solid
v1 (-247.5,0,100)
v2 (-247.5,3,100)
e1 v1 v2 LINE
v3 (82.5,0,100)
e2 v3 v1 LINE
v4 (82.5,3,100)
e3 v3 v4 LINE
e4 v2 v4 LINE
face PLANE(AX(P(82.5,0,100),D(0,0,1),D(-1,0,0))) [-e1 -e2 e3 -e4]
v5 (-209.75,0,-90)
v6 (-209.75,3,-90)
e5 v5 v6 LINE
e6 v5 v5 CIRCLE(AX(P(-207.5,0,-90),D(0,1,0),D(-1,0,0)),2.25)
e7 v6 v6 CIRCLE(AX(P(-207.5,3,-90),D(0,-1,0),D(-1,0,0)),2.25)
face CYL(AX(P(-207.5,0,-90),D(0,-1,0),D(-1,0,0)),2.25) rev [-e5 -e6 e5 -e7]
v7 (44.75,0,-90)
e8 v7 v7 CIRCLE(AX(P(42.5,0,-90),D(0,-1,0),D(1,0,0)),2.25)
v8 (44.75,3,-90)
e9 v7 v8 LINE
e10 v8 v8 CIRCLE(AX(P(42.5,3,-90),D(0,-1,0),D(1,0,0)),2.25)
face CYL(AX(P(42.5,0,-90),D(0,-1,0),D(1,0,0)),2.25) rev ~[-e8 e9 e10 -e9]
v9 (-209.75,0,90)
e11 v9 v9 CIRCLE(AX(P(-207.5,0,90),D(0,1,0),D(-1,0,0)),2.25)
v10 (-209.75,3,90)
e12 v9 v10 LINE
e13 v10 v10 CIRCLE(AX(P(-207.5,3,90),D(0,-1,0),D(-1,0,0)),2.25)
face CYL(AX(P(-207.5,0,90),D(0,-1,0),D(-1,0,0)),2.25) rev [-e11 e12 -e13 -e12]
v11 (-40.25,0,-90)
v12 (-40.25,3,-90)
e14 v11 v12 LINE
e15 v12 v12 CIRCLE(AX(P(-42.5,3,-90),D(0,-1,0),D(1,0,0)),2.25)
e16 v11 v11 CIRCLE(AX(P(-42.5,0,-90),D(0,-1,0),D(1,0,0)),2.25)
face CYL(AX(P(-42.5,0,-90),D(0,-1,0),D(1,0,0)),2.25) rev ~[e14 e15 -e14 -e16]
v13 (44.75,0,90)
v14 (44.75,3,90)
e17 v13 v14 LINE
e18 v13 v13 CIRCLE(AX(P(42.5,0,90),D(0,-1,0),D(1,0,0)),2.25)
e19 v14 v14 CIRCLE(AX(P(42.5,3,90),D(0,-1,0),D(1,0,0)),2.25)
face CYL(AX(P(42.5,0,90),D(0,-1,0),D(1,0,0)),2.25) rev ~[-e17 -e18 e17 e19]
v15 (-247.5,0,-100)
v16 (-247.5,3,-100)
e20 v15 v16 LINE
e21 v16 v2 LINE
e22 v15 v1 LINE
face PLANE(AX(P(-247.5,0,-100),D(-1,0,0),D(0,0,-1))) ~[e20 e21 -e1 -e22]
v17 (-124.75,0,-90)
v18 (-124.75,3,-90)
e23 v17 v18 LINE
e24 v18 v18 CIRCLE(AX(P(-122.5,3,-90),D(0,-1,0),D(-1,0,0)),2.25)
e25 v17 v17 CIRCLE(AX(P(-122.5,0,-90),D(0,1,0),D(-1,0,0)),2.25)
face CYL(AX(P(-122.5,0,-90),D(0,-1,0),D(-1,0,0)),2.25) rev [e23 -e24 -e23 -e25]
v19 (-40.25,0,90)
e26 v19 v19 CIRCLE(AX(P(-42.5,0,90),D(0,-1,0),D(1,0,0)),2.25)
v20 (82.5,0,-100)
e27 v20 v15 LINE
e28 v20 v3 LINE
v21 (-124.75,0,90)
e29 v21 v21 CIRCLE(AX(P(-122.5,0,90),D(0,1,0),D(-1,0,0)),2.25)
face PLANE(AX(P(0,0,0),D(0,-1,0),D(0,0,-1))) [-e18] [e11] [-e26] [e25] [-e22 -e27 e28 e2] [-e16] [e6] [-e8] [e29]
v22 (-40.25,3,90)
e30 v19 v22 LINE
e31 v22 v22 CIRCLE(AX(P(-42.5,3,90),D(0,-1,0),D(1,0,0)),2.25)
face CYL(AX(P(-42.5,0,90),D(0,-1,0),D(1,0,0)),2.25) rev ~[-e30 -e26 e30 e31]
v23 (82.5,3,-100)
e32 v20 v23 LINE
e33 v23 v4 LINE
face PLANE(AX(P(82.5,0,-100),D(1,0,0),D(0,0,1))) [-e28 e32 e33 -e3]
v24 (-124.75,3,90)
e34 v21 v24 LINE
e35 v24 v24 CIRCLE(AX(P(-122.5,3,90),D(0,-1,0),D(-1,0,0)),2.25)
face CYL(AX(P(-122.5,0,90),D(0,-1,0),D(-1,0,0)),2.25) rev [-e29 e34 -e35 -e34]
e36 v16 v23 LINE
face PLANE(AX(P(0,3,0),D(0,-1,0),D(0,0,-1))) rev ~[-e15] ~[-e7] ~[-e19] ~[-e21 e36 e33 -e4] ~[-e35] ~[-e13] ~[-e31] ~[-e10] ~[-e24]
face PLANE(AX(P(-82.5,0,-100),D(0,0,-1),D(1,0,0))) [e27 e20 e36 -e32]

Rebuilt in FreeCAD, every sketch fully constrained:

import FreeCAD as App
import Part
import Sketcher

V = App.Vector

doc = App.newDocument("Part")
body = doc.addObject("PartDesign::Body", "Body")

# Sketch on XZ plane
sketch1 = body.newObject("Sketcher::SketchObject", "Sketch")
sketch1.AttachmentSupport = (doc.getObject("XZ_Plane"), [""])
sketch1.MapMode = "FlatFace"
sketch1.addGeometry(Part.LineSegment(V(-82, 100, 0), V(-82, -100, 0)), False)
sketch1.addGeometry(Part.LineSegment(V(-82, -100, 0), V(82, -100, 0)), False)
sketch1.addGeometry(Part.LineSegment(V(82, -100, 0), V(82, 100, 0)), False)
sketch1.addGeometry(Part.LineSegment(V(82, 100, 0), V(-82, 100, 0)), False)
sketch1.addConstraint(Sketcher.Constraint("Coincident", 0, 2, 1, 1))
sketch1.addConstraint(Sketcher.Constraint("Coincident", 1, 2, 2, 1))
sketch1.addConstraint(Sketcher.Constraint("Coincident", 2, 2, 3, 1))
sketch1.addConstraint(Sketcher.Constraint("Coincident", 3, 2, 0, 1))
sketch1.addConstraint(Sketcher.Constraint("Vertical", 0))
sketch1.addConstraint(Sketcher.Constraint("Horizontal", 1))
sketch1.addConstraint(Sketcher.Constraint("Vertical", 2))
sketch1.addConstraint(Sketcher.Constraint("Horizontal", 3))
sketch1.addConstraint(Sketcher.Constraint("Symmetric", 0, 2, 2, 2, -1, 1))
sketch1.addConstraint(Sketcher.Constraint("DistanceX", 0, 2, -1, 1, 82.5))
sketch1.addConstraint(Sketcher.Constraint("DistanceY", 0, 2, 0, 1, 200.0))
pad1 = body.newObject("PartDesign::Pad", "Pad")
pad1.Profile = sketch1
pad1.Length = 3
pad1.Reversed = True

# Sketch on XZ plane
sketch2 = body.newObject("Sketcher::SketchObject", "Sketch001")
sketch2.AttachmentSupport = (doc.getObject("XZ_Plane"), [""])
sketch2.MapMode = "FlatFace"
sketch2.addGeometry(Part.Circle(V(-42.5, 90, 0), V(0, 0, 1), 2.2), False)
sketch2.addGeometry(Part.Circle(V(42.5, 90, 0), V(0, 0, 1), 2.2), False)
sketch2.addConstraint(Sketcher.Constraint("Equal", 0, 1))
sketch2.addConstraint(Sketcher.Constraint("Symmetric", 0, 3, 1, 3, -2))
sketch2.addConstraint(Sketcher.Constraint("Diameter", 0, 4.5))
sketch2.addConstraint(Sketcher.Constraint("DistanceX", 0, 3, -1, 1, 42.5))
sketch2.addConstraint(Sketcher.Constraint("DistanceY", -1, 1, 0, 3, 90.0))
pocket1 = body.newObject("PartDesign::Pocket", "Pocket")
pocket1.Profile = sketch2
pocket1.Type = "ThroughAll"

# Sketch on XZ plane
sketch3 = body.newObject("Sketcher::SketchObject", "Sketch002")
sketch3.AttachmentSupport = (doc.getObject("XZ_Plane"), [""])
sketch3.MapMode = "FlatFace"
sketch3.addGeometry(Part.Circle(V(42.5, -90, 0), V(0, 0, 1), 2.2), False)
sketch3.addGeometry(Part.Circle(V(-42.5, -90, 0), V(0, 0, 1), 2.2), False)
sketch3.addConstraint(Sketcher.Constraint("Equal", 0, 1))
sketch3.addConstraint(Sketcher.Constraint("Symmetric", 0, 3, 1, 3, -2))
sketch3.addConstraint(Sketcher.Constraint("Diameter", 0, 4.5))
sketch3.addConstraint(Sketcher.Constraint("DistanceY", 0, 3, -1, 1, 90.0))
sketch3.addConstraint(Sketcher.Constraint("DistanceX", 1, 3, 0, 3, 85.0))
pocket2 = body.newObject("PartDesign::Pocket", "Pocket001")
pocket2.Profile = sketch3
pocket2.Type = "ThroughAll"
doc.recompute()

datumplane = body.newObject("PartDesign::Plane", "DatumPlane")
datumplane.AttachmentSupport = (doc.getObject("YZ_Plane"), [""])
datumplane.MapMode = "FlatFace"
datumplane.AttachmentOffset = App.Placement(V(0, 0, -82.5), App.Rotation())
mirrored = body.newObject("PartDesign::Mirrored", "Mirrored")
mirrored.Originals = [pad1, pocket1, pocket2]
mirrored.MirrorPlane = (datumplane, [""])
body.Tip = mirrored

doc.recompute()
